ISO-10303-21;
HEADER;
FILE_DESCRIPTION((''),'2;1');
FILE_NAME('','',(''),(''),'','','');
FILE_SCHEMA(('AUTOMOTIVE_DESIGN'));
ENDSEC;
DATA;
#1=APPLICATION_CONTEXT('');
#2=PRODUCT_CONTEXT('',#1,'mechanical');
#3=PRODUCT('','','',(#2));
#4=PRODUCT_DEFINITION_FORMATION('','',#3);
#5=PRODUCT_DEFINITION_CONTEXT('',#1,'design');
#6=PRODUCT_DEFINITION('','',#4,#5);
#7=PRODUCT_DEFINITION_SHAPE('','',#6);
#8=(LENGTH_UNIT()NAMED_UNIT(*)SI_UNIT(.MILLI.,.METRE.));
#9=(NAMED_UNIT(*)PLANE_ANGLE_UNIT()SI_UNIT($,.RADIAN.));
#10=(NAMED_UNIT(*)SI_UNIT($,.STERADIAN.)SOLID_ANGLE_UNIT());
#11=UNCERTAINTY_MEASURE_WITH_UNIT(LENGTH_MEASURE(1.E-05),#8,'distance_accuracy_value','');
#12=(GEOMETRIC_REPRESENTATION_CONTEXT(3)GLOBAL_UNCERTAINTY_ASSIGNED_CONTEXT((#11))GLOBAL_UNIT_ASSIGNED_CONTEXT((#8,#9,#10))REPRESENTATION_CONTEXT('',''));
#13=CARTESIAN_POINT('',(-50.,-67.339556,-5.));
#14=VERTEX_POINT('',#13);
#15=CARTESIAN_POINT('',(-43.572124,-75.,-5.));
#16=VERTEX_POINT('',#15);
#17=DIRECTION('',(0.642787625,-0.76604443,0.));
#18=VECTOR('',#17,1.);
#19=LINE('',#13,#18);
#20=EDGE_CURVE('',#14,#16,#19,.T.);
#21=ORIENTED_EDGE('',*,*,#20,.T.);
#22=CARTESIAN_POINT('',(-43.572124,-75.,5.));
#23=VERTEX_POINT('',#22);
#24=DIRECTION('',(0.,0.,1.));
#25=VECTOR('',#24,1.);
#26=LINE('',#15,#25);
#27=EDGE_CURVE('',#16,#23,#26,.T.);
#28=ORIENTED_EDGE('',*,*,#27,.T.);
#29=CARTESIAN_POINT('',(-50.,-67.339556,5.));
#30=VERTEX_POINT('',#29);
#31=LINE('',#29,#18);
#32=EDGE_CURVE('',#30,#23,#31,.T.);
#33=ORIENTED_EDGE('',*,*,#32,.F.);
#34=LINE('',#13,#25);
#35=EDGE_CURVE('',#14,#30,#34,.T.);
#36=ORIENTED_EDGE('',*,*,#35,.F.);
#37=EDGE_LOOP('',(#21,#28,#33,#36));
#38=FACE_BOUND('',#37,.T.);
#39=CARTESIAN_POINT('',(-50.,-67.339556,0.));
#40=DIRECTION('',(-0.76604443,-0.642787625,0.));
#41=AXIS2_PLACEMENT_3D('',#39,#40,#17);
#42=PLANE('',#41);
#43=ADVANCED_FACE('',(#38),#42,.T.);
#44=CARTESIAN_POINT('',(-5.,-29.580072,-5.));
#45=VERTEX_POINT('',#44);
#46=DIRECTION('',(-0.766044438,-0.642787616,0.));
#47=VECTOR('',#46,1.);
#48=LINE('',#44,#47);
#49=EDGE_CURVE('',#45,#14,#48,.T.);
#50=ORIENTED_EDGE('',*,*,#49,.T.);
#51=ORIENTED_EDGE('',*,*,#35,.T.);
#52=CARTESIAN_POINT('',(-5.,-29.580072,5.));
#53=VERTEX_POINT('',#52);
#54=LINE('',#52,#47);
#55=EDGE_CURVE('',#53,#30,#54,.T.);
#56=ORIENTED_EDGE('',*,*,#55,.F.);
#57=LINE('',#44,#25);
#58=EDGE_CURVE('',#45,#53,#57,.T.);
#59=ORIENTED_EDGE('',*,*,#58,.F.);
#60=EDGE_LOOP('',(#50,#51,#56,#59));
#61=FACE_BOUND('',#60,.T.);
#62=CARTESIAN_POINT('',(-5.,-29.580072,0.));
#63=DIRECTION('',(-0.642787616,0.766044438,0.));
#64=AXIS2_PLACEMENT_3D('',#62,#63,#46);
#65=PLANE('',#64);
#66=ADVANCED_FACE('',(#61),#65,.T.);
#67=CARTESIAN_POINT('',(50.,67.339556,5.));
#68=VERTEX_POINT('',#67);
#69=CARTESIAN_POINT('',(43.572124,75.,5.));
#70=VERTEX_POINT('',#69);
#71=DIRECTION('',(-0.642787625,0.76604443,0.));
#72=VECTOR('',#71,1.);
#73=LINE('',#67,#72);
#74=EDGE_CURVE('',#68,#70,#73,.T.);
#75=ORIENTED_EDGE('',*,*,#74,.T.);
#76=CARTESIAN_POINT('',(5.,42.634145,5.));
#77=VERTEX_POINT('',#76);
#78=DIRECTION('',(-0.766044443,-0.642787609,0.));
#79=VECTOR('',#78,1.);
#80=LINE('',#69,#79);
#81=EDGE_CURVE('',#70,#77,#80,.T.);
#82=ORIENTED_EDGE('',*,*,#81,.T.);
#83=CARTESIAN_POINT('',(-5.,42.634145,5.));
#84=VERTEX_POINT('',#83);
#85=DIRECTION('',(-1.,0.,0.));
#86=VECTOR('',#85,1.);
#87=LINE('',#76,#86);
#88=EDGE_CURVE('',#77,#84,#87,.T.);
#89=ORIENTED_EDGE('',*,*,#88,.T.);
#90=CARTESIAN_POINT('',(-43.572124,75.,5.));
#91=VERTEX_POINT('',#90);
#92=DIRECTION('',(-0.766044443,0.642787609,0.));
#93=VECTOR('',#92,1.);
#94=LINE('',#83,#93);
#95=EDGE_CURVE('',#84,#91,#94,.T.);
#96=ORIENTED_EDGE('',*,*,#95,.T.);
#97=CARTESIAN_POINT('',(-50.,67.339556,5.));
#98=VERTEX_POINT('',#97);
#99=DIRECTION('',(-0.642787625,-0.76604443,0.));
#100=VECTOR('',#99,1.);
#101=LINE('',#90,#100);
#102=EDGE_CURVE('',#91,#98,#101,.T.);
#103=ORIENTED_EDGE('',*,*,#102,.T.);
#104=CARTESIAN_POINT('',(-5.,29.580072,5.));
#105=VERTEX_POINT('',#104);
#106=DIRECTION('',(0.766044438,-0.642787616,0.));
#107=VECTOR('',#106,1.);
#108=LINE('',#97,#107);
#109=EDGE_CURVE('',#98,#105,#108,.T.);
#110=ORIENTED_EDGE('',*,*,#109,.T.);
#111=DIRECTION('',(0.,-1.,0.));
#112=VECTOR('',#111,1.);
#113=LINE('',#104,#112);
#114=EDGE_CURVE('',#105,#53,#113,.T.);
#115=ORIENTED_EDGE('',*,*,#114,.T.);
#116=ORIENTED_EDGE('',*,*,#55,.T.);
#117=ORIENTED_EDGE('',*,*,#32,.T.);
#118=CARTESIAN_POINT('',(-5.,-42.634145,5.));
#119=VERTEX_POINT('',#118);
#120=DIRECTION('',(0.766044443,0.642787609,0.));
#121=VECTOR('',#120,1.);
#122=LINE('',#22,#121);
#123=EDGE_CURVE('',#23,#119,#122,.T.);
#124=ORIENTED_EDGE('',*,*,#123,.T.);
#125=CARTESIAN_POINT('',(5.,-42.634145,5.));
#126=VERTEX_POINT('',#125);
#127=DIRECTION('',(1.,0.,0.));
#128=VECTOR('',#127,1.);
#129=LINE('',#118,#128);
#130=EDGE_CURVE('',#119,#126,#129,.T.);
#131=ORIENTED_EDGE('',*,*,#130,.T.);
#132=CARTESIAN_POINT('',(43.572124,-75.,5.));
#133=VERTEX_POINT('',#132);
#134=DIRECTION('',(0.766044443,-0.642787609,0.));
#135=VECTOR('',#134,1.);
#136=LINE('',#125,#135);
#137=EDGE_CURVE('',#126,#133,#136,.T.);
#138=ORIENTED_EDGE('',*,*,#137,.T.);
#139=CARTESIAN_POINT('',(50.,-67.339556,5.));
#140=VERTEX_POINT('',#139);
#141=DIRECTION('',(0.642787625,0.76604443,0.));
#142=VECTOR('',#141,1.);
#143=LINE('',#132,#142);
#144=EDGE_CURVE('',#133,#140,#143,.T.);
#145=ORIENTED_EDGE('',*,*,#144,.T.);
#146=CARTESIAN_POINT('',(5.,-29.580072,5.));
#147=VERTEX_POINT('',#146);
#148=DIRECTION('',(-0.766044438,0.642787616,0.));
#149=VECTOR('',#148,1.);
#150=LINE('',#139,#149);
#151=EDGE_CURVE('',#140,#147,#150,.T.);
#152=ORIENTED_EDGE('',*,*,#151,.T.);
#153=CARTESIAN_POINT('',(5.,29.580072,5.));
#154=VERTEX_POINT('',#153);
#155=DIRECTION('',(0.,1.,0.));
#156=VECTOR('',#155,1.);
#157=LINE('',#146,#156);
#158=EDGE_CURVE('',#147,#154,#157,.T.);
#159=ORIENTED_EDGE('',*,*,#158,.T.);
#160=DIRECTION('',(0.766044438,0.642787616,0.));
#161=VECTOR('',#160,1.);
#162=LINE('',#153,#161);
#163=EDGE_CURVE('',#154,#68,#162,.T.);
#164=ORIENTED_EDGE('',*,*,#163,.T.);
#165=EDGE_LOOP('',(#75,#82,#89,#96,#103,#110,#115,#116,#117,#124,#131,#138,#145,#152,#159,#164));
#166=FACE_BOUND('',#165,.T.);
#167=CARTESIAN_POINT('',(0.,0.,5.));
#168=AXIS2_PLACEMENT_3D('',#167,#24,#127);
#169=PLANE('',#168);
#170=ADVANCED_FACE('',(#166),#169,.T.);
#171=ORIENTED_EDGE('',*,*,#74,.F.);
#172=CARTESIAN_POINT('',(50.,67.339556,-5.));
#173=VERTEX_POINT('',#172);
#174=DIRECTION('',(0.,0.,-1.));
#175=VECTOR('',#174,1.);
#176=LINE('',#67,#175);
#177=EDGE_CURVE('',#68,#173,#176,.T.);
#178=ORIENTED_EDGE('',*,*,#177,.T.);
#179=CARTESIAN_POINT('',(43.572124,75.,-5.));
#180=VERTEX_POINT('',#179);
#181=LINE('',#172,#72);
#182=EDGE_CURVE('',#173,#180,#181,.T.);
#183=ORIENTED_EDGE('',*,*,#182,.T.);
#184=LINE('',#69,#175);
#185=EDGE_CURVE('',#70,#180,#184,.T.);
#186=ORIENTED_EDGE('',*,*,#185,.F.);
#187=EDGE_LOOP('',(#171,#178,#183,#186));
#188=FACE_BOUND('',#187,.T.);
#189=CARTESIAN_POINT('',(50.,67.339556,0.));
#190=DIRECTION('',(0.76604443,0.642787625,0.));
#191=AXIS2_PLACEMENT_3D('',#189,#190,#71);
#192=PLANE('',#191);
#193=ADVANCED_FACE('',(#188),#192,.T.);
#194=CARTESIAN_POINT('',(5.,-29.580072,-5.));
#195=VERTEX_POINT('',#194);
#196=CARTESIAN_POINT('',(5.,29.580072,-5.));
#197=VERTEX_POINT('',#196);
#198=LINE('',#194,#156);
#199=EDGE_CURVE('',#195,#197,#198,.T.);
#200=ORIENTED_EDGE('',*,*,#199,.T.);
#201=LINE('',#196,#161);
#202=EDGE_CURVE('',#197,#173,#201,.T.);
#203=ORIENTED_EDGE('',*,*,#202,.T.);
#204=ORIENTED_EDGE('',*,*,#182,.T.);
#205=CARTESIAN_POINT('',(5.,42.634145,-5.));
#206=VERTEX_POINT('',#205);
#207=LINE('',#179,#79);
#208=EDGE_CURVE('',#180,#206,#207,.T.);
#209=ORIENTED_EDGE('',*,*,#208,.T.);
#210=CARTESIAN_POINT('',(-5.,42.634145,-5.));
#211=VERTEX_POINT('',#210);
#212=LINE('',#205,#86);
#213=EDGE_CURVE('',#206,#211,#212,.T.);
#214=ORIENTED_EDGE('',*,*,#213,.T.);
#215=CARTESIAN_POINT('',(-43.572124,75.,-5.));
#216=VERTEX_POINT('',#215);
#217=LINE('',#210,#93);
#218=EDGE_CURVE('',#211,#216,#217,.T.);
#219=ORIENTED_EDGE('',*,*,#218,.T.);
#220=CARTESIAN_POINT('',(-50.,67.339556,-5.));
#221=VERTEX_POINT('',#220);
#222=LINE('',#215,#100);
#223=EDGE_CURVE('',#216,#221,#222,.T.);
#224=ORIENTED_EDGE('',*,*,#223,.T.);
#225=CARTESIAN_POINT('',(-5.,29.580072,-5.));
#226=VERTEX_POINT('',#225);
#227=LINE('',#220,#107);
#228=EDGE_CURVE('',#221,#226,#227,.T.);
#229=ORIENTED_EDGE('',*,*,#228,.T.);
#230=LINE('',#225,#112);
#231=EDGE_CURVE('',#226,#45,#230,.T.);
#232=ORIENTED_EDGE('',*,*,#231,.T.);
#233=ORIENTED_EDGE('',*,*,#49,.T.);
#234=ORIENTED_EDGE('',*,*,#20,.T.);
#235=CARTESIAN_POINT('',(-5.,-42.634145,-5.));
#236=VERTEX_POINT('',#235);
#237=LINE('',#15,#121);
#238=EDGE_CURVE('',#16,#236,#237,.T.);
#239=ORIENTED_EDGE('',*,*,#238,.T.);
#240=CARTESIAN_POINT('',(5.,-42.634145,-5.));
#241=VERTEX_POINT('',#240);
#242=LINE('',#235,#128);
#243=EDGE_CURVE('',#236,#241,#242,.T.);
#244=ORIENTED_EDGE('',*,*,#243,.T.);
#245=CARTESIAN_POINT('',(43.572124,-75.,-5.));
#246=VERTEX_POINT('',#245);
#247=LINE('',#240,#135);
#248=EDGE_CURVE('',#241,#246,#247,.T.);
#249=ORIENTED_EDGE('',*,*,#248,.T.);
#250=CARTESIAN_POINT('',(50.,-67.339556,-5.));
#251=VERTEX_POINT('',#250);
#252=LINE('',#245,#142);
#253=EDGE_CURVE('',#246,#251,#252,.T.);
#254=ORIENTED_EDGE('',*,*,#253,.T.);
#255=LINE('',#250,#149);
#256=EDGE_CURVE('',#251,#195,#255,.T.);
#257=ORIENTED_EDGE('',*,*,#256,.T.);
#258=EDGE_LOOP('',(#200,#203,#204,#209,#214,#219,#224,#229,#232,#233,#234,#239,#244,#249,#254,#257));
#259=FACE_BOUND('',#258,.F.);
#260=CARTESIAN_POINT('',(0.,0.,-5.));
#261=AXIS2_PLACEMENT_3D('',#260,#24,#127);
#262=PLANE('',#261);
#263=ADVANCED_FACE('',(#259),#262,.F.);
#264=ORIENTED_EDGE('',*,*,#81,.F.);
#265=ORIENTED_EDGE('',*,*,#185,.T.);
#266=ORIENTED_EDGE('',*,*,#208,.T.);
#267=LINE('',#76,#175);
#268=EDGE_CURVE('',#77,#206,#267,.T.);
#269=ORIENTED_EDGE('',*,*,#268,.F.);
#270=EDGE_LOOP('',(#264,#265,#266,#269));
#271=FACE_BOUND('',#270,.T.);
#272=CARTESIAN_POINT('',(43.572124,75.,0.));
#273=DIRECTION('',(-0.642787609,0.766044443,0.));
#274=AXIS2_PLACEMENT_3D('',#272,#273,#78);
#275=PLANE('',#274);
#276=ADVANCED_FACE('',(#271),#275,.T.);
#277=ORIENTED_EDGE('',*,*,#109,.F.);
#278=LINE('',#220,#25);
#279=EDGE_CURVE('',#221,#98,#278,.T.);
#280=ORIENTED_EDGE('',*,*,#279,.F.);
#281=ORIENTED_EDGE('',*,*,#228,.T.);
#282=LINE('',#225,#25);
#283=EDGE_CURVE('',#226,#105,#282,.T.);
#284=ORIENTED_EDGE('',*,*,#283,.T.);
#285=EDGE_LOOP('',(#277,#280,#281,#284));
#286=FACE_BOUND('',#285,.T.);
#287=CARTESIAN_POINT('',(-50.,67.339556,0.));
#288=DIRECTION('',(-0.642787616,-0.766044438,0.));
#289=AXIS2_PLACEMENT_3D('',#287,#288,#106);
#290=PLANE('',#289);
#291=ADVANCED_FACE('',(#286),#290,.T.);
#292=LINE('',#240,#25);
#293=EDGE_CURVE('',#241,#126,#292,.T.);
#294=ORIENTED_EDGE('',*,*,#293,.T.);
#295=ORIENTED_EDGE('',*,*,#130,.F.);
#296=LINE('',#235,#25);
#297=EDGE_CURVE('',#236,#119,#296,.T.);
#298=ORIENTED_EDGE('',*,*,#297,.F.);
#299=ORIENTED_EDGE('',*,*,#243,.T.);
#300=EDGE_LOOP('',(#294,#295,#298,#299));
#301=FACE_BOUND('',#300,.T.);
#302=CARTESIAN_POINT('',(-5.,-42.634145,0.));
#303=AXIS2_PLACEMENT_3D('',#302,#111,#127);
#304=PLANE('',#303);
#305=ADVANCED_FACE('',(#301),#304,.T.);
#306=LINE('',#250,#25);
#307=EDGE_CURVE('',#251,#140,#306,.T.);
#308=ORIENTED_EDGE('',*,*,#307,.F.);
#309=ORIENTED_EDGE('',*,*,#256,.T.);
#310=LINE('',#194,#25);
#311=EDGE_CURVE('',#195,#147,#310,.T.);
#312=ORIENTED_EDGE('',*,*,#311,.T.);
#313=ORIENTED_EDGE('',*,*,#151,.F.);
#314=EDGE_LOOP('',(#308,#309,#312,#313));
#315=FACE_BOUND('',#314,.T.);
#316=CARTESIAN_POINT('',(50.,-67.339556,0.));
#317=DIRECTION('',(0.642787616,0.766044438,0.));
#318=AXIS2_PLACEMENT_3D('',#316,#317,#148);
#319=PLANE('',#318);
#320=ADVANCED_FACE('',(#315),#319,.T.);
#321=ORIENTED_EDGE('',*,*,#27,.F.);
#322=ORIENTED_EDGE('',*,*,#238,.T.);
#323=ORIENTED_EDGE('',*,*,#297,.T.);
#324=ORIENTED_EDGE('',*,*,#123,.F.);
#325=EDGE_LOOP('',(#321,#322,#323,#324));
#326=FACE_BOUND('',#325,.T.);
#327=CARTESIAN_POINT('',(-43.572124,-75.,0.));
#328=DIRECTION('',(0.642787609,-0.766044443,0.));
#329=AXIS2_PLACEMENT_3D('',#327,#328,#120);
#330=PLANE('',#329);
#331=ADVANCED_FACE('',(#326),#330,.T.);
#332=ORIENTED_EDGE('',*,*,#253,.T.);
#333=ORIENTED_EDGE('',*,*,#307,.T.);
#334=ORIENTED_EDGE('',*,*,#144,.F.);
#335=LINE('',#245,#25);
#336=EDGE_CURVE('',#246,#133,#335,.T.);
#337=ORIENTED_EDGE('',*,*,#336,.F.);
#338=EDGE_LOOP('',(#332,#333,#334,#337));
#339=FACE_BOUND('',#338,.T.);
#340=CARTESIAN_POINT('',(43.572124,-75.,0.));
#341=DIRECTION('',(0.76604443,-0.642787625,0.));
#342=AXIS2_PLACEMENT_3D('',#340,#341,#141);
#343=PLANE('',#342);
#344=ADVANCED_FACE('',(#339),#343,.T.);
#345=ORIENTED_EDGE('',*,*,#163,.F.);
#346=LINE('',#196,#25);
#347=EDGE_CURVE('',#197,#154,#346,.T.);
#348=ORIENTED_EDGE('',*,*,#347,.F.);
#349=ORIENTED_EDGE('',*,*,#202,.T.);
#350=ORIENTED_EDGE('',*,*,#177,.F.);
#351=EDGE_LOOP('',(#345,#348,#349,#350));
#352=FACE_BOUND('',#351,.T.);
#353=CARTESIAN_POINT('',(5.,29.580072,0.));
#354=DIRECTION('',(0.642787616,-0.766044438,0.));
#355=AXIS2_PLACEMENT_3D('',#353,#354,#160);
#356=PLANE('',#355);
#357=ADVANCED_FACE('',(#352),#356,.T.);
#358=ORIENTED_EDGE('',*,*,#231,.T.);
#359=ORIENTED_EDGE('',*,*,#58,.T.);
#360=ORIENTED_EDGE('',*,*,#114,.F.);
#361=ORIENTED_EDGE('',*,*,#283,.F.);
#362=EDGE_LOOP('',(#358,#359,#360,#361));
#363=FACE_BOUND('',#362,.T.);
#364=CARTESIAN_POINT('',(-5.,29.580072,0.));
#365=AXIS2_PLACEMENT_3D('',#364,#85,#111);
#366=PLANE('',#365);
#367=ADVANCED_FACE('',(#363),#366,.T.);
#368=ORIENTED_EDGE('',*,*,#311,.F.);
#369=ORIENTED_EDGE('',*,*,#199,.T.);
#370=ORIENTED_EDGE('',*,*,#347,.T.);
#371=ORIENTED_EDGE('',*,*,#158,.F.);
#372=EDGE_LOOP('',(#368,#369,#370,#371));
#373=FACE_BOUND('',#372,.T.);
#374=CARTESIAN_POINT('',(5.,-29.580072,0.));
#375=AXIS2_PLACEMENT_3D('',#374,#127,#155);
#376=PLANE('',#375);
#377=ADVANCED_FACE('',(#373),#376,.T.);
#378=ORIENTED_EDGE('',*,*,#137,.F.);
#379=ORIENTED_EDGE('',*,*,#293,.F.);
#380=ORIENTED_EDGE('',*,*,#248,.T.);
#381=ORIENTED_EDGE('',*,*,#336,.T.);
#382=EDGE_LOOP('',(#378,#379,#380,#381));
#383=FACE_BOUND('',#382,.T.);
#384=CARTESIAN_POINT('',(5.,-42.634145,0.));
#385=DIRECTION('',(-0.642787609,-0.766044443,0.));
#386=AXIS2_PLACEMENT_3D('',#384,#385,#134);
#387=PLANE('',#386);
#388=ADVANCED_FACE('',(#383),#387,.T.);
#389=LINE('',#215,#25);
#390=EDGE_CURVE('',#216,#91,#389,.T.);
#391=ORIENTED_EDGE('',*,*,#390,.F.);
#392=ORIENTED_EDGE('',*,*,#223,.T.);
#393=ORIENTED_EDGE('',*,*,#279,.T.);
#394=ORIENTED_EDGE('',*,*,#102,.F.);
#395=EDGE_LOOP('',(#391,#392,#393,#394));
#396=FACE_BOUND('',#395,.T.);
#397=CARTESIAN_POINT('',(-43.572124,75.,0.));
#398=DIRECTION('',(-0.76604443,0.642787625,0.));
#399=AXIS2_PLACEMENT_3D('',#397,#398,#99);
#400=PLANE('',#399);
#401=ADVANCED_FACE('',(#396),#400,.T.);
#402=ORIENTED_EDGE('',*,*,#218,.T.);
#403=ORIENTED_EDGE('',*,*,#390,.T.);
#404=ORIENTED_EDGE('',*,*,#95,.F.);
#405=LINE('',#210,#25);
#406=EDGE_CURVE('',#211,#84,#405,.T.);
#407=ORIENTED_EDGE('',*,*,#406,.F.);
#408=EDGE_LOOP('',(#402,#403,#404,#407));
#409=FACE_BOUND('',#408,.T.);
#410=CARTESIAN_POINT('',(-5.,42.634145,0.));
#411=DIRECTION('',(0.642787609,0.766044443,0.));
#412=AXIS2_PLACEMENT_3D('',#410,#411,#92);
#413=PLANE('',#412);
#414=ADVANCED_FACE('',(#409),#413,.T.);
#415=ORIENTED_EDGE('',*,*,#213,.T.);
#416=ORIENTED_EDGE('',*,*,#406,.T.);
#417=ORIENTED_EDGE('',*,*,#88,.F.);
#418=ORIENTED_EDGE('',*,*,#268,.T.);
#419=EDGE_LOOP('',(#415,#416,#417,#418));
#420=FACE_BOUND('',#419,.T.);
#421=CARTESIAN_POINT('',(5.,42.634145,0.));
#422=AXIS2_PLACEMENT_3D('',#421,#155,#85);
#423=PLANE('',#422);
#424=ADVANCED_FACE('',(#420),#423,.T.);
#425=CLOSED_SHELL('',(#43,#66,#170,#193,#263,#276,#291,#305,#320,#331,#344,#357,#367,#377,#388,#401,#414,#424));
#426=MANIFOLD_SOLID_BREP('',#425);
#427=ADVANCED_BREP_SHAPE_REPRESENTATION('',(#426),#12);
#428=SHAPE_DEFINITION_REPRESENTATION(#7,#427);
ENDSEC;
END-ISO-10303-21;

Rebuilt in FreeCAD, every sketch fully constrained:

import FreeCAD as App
import Part
import Sketcher

V = App.Vector
Q = App.Units.Quantity


def add_polygon(sketch, points):
    """Adds a closed chain of lines whose ends are joined by coincident constraints."""
    first, n = sketch.GeometryCount, len(points)
    for a, b in zip(points, points[1:] + points[:1]):
        sketch.addGeometry(Part.LineSegment(App.Vector(*a, 0), App.Vector(*b, 0)), False)
    for i in range(n):
        sketch.addConstraint(Sketcher.Constraint("Coincident", first + i, 2, first + (i + 1) % n, 1))

doc = App.newDocument("Part")
body = doc.addObject("PartDesign::Body", "Body")

sketch1 = body.newObject("Sketcher::SketchObject", "Sketch")
sketch1.AttachmentSupport = (doc.getObject("XY_Plane"), [""])
sketch1.MapMode = "FlatFace"
add_polygon(sketch1, [(5, 43), (-5, 43), (-44, 75), (-50, 67), (-5, 30), (-5, -30), (-50, -67), (-44, -75), (-5, -43), (5, -43), (44, -75), (50, -67), (5, -30), (5, 30), (50, 67), (44, 75)])
sketch1.addConstraint(Sketcher.Constraint("Horizontal", 0))
sketch1.addConstraint(Sketcher.Constraint("Vertical", 4))
sketch1.addConstraint(Sketcher.Constraint("Horizontal", 8))
sketch1.addConstraint(Sketcher.Constraint("Vertical", 12))
sketch1.addConstraint(Sketcher.Constraint("Symmetric", 0, 2, 8, 2, -1, 1))
sketch1.addConstraint(Sketcher.Constraint("Symmetric", 1, 2, 9, 2, -1, 1))
sketch1.addConstraint(Sketcher.Constraint("Symmetric", 2, 2, 10, 2, -1, 1))
sketch1.addConstraint(Sketcher.Constraint("Symmetric", 3, 2, 11, 2, -1, 1))
sketch1.addConstraint(Sketcher.Constraint("Symmetric", 5, 2, 13, 2, -1, 1))
sketch1.addConstraint(Sketcher.Constraint("Symmetric", 6, 2, 14, 2, -1, 1))
sketch1.addConstraint(Sketcher.Constraint("Symmetric", 6, 2, 9, 2, -2))
sketch1.addConstraint(Sketcher.Constraint("Symmetric", 5, 2, 10, 2, -2))
sketch1.addConstraint(Sketcher.Constraint("Perpendicular", 1, 2))
sketch1.addConstraint(Sketcher.Constraint("Perpendicular", 2, 3))
sketch1.addConstraint(Sketcher.Constraint("Perpendicular", 5, 6))
sketch1.addConstraint(Sketcher.Constraint("Perpendicular", 6, 7))
sketch1.addConstraint(Sketcher.Constraint("Parallel", 7, 13))
sketch1.addConstraint(Sketcher.Constraint("Perpendicular", 14, 15))
sketch1.addConstraint(Sketcher.Constraint("Vertical", 0, 2, 3, 2))
sketch1.addConstraint(Sketcher.Constraint("DistanceX", 0, 2, 0, 1, 10.0))
sketch1.addConstraint(Sketcher.Constraint("Angle", 1, Q("140 deg")))
sketch1.addConstraint(Sketcher.Constraint("Distance", 2, 10.0))
sketch1.addConstraint(Sketcher.Constraint("DistanceY", -1, 1, 1, 2, 75.0))
sketch1.addConstraint(Sketcher.Constraint("DistanceX", 2, 2, -1, 1, 50.0))
pad1 = body.newObject("PartDesign::Pad", "Pad")
pad1.Profile = sketch1
pad1.Length = 10
pad1.Midplane = True

doc.recompute()
